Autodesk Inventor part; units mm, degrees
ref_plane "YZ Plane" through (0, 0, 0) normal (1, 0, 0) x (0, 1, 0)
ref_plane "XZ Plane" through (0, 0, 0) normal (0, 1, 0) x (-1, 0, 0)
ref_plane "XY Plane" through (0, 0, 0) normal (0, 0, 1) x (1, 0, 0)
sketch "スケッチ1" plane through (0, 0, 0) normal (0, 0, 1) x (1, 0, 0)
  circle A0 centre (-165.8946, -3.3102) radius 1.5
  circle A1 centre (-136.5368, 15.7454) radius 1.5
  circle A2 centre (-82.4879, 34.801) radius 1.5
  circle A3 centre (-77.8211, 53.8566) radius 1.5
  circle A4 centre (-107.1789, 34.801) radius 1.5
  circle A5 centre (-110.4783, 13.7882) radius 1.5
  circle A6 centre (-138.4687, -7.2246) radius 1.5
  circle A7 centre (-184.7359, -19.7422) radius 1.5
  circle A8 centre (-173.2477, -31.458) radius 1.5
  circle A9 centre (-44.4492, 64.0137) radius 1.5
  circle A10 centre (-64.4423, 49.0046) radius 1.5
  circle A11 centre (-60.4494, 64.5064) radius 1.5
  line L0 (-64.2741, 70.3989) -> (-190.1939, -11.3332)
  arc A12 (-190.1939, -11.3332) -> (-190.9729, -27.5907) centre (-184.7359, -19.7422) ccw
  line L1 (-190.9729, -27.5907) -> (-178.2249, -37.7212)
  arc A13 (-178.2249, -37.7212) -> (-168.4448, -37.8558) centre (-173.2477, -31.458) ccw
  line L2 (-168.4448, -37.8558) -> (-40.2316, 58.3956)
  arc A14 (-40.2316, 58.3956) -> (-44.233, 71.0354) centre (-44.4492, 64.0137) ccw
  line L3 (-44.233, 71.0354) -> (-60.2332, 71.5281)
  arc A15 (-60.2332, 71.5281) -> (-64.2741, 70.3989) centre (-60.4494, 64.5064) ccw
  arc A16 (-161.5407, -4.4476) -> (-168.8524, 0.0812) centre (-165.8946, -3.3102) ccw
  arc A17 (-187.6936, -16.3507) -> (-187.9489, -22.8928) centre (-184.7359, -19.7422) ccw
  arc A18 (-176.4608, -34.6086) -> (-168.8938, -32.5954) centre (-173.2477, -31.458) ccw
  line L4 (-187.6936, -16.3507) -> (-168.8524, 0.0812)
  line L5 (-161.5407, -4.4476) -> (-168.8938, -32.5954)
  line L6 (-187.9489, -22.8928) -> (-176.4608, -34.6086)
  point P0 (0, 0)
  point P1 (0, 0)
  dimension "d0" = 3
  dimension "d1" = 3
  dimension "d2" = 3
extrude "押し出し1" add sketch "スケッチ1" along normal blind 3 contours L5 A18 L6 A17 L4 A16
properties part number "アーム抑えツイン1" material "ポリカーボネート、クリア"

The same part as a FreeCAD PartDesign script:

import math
import FreeCAD as App
import Part
import Sketcher
from FreeCAD import Vector
Q = App.Units.Quantity

doc = App.newDocument("Part")
body = doc.addObject("PartDesign::Body", "Body")

sketch1 = body.newObject("Sketcher::SketchObject", "Sketch")
sketch1.AttachmentSupport = (doc.getObject("XY_Plane"), [""])
sketch1.MapMode = "FlatFace"
sketch1.addGeometry([
    Part.LineSegment(Vector(-168.9, -32.6, 0), Vector(-161.5, -4.4, 0)),
    Part.ArcOfCircle(Part.Circle(Vector(-165.9, -3.3, 0), Vector(0, 0, 1), 4.5), math.radians(-15), math.radians(131)),
    Part.LineSegment(Vector(-168.9, 0.1, 0), Vector(-187.7, -16.4, 0)),
    Part.ArcOfCircle(Part.Circle(Vector(-184.7, -19.7, 0), Vector(0, 0, 1), 4.5), math.radians(131), math.radians(224)),
    Part.LineSegment(Vector(-187.9, -22.9, 0), Vector(-176.5, -34.6, 0)),
    Part.ArcOfCircle(Part.Circle(Vector(-173.2, -31.5, 0), Vector(0, 0, 1), 4.5), math.radians(-136), math.radians(-15)),
    Part.Circle(Vector(-173.2, -31.5, 0), Vector(0, 0, 1), 1.5),
    Part.Circle(Vector(-184.7, -19.7, 0), Vector(0, 0, 1), 1.5),
    Part.Circle(Vector(-165.9, -3.3, 0), Vector(0, 0, 1), 1.5),
], False)
sketch1.addConstraint([
    Sketcher.Constraint("Tangent", 0, 2, 1, 1),
    Sketcher.Constraint("Tangent", 1, 2, 2, 1),
    Sketcher.Constraint("Tangent", 2, 2, 3, 1),
    Sketcher.Constraint("Tangent", 3, 2, 4, 1),
    Sketcher.Constraint("Tangent", 4, 2, 5, 1),
    Sketcher.Constraint("Tangent", 5, 2, 0, 1),
    Sketcher.Constraint("Coincident", 6, 3, 5, 3),
    Sketcher.Constraint("Coincident", 7, 3, 3, 3),
    Sketcher.Constraint("Coincident", 8, 3, 1, 3),
    Sketcher.Constraint("Equal", 1, 3),
    Sketcher.Constraint("Equal", 3, 5),
    Sketcher.Constraint("Equal", 6, 7),
    Sketcher.Constraint("Equal", 7, 8),
    Sketcher.Constraint("Diameter", 6, Q("3 mm")),
    Sketcher.Constraint("Radius", 1, Q("4.5 mm")),
    Sketcher.Constraint("Distance", 2, Q("25 mm")),
    Sketcher.Constraint("Angle", 0, Q("75.3597 deg")),
    Sketcher.Constraint("DistanceX", 3, 3, -1, 1, Q("184.736 mm")),
    Sketcher.Constraint("DistanceY", 5, 3, -1, 1, Q("31.458 mm")),
    Sketcher.Constraint("DistanceX", 3, 2, -1, 1, Q("187.949 mm")),
    Sketcher.Constraint("DistanceY", 3, 3, 1, 3, Q("16.432 mm")),
])
pad1 = body.newObject("PartDesign::Pad", "Pad")
pad1.Profile = sketch1
pad1.Length = 3

doc.recompute()
